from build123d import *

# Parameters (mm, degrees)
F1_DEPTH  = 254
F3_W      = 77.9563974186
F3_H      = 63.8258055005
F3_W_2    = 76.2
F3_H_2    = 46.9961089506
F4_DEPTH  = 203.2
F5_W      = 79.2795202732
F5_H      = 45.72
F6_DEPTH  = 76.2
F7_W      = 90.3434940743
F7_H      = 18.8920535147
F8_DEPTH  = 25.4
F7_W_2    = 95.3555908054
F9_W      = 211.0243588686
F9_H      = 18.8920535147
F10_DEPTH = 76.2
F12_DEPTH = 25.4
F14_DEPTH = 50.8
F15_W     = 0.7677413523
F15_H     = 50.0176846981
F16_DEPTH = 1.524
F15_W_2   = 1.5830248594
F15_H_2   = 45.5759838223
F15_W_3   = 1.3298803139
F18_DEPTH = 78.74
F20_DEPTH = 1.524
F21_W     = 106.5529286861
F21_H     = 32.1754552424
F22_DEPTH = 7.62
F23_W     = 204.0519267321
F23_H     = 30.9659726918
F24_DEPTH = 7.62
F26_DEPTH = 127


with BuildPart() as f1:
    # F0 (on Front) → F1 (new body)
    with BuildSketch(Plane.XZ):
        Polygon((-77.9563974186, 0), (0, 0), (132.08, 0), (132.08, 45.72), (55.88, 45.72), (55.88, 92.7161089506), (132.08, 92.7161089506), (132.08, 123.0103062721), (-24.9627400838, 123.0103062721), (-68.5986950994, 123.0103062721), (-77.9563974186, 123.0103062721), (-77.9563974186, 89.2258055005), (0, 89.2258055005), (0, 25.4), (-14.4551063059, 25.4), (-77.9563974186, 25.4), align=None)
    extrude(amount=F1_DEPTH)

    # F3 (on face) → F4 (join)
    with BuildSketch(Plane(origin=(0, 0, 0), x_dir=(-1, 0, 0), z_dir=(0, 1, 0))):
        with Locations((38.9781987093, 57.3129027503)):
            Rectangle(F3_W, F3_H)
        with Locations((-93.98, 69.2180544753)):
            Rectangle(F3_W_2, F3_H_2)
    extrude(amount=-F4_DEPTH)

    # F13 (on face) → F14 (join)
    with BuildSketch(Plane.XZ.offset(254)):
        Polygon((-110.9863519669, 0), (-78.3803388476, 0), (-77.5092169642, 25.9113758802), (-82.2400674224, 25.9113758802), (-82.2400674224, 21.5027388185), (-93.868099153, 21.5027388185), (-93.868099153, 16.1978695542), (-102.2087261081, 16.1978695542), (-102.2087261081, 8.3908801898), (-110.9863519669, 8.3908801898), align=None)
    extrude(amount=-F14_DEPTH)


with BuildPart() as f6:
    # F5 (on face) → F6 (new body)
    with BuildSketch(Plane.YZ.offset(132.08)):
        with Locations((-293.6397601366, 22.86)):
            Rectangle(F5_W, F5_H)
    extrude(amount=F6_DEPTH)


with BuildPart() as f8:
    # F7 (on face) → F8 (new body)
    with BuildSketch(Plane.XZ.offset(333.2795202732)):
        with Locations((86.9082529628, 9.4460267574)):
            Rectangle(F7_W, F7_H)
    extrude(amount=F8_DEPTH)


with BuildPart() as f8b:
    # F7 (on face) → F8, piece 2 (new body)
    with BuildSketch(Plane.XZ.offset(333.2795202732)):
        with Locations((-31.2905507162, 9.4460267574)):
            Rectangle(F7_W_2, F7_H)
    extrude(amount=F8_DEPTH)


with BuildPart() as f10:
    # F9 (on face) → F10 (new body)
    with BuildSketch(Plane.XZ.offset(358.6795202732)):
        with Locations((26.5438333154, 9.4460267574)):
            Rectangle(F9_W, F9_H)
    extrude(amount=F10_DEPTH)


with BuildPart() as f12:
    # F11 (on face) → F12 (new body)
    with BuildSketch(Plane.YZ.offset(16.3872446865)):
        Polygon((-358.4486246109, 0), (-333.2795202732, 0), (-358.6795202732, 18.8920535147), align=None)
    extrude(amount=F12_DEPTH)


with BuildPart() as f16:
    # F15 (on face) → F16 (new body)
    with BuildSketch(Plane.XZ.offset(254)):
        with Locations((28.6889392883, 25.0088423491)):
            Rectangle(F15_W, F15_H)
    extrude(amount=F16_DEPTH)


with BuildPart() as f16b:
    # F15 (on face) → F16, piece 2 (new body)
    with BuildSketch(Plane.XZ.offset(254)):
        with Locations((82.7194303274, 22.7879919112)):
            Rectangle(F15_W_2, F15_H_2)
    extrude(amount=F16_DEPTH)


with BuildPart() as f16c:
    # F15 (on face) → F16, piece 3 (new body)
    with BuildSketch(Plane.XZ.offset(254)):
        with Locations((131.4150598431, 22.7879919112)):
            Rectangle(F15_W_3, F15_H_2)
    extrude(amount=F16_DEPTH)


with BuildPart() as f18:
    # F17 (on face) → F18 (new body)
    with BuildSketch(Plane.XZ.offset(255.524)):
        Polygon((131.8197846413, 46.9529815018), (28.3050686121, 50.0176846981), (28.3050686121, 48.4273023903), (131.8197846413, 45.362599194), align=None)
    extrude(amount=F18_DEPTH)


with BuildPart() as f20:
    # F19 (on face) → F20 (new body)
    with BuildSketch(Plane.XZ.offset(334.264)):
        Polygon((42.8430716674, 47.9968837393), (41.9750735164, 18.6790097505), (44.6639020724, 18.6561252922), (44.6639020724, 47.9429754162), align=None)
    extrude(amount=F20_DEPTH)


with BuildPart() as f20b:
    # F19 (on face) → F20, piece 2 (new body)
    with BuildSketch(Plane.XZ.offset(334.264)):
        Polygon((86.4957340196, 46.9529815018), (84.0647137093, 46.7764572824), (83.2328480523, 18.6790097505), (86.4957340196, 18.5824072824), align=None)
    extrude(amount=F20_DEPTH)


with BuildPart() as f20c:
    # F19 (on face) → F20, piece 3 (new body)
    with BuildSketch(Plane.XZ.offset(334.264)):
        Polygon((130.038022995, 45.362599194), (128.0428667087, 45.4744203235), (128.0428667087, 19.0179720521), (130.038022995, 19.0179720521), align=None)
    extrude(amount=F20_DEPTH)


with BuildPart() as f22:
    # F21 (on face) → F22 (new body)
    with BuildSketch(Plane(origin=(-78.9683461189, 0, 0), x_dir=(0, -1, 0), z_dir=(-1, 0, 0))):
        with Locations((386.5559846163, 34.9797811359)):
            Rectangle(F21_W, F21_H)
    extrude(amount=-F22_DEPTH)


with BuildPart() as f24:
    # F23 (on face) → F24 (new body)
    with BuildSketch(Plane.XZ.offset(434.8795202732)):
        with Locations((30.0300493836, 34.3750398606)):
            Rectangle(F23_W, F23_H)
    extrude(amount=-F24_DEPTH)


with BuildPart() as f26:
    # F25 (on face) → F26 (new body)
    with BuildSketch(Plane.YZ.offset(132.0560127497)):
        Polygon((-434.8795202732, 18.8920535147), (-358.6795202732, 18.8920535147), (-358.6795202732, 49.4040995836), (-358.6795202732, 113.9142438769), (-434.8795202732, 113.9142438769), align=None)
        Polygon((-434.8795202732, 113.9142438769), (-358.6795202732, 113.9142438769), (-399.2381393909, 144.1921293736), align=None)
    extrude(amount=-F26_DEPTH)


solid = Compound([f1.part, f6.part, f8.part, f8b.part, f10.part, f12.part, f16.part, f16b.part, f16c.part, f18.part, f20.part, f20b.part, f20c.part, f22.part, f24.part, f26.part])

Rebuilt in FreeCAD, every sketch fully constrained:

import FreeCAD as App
import Part
import Sketcher
Q = App.Units.Quantity


def add_polygon(sketch, points):
    """Adds a closed chain of lines whose ends are joined by coincident constraints."""
    first, n = sketch.GeometryCount, len(points)
    for a, b in zip(points, points[1:] + points[:1]):
        sketch.addGeometry(Part.LineSegment(App.Vector(*a, 0), App.Vector(*b, 0)), False)
    for i in range(n):
        sketch.addConstraint(Sketcher.Constraint("Coincident", first + i, 2, first + (i + 1) % n, 1))

doc = App.newDocument("Part")
body = doc.addObject("PartDesign::Body", "Body")

sketch1 = body.newObject("Sketcher::SketchObject", "Sketch")
sketch1.AttachmentSupport = (doc.getObject("XZ_Plane"), [""])
sketch1.MapMode = "FlatFace"
add_polygon(sketch1, [(-77.956397, 0), (132.08, 0), (132.08, 45.72), (55.88, 45.72), (55.88, 92.716109), (132.08, 92.716109), (132.08, 123.010306), (-77.956397, 123.010306), (-77.956397, 89.225806), (0, 89.225806), (0, 25.4), (-77.956397, 25.4)])
sketch1.addConstraint([
    Sketcher.Constraint("Horizontal", 0),
    Sketcher.Constraint("Vertical", 1),
    Sketcher.Constraint("Horizontal", 2),
    Sketcher.Constraint("Vertical", 3),
    Sketcher.Constraint("Horizontal", 4),
    Sketcher.Constraint("Vertical", 5),
    Sketcher.Constraint("Horizontal", 6),
    Sketcher.Constraint("Vertical", 7),
    Sketcher.Constraint("Horizontal", 8),
    Sketcher.Constraint("Vertical", 9),
    Sketcher.Constraint("Horizontal", 10),
    Sketcher.Constraint("Vertical", 11),
    Sketcher.Constraint("PointOnObject", 0, 2, -1),
    Sketcher.Constraint("PointOnObject", 8, 2, -2),
    Sketcher.Constraint("Vertical", 1, 2, 4, 2),
    Sketcher.Constraint("Vertical", 7, 2, 10, 2),
    Sketcher.Constraint("DistanceX", 2, 2, 2, 1, Q("3 in")),
    Sketcher.Constraint("DistanceY", 11, 2, 11, 1, Q("1 in")),
    Sketcher.Constraint("DistanceY", 1, 1, 1, 2, Q("1.8 in")),
    Sketcher.Constraint("DistanceX", -1, 1, 0, 2, Q("5.2 in")),
    Sketcher.Constraint("DistanceY", 7, 2, 7, 1, Q("33.784501 mm")),
    Sketcher.Constraint("DistanceY", 3, 1, 3, 2, Q("46.996109 mm")),
    Sketcher.Constraint("DistanceX", 0, 1, 0, 2, Q("210.036397 mm")),
    Sketcher.Constraint("DistanceY", 5, 1, 5, 2, Q("30.294197 mm")),
])
pad1 = body.newObject("PartDesign::Pad", "Pad")
pad1.Profile = sketch1
pad1.Length = Q("10 in")

sketch2 = body.newObject("Sketcher::SketchObject", "Sketch001")
sketch2.AttachmentSupport = (doc.getObject("XZ_Plane"), [""])
sketch2.MapMode = "FlatFace"
add_polygon(sketch2, [(0, 89.225806), (0, 25.4), (-77.956397, 25.4), (-77.956397, 89.225806)])
add_polygon(sketch2, [(132.08, 92.716109), (132.08, 45.72), (55.88, 45.72), (55.88, 92.716109)])
sketch2.addConstraint([
    Sketcher.Constraint("Vertical", 0),
    Sketcher.Constraint("Horizontal", 1),
    Sketcher.Constraint("Vertical", 2),
    Sketcher.Constraint("Horizontal", 3),
    Sketcher.Constraint("Vertical", 4),
    Sketcher.Constraint("Horizontal", 5),
    Sketcher.Constraint("Vertical", 6),
    Sketcher.Constraint("Horizontal", 7),
    Sketcher.Constraint("PointOnObject", 0, 2, -2),
    Sketcher.Constraint("DistanceX", 5, 2, 5, 1, Q("3 in")),
    Sketcher.Constraint("DistanceY", -1, 1, 0, 2, Q("1 in")),
    Sketcher.Constraint("DistanceX", -1, 1, 4, 2, Q("5.2 in")),
    Sketcher.Constraint("DistanceY", -1, 1, 4, 2, Q("1.8 in")),
    Sketcher.Constraint("DistanceY", 4, 2, 4, 1, Q("46.996109 mm")),
    Sketcher.Constraint("DistanceX", 1, 2, 1, 1, Q("77.956397 mm")),
    Sketcher.Constraint("DistanceY", 0, 2, 0, 1, Q("63.825806 mm")),
])
pad2 = body.newObject("PartDesign::Pad", "Pad001")
pad2.Profile = sketch2
pad2.Length = Q("8 in")

sketch3 = body.newObject("Sketcher::SketchObject", "Sketch002")
sketch3.AttachmentSupport = (doc.getObject("XZ_Plane"), [""])
sketch3.MapMode = "FlatFace"
sketch3.AttachmentOffset = App.Placement(App.Vector(0, 0, 10 * 25.4), App.Rotation())
add_polygon(sketch3, [(-110.986352, 0), (-78.380339, 0), (-77.509217, 25.911376), (-82.240067, 25.911376), (-82.240067, 21.502739), (-93.868099, 21.502739), (-93.868099, 16.19787), (-102.208726, 16.19787), (-102.208726, 8.39088), (-110.986352, 8.39088)])
sketch3.addConstraint([
    Sketcher.Constraint("Horizontal", 0),
    Sketcher.Constraint("Horizontal", 2),
    Sketcher.Constraint("Vertical", 3),
    Sketcher.Constraint("Horizontal", 4),
    Sketcher.Constraint("Vertical", 5),
    Sketcher.Constraint("Horizontal", 6),
    Sketcher.Constraint("Vertical", 7),
    Sketcher.Constraint("Horizontal", 8),
    Sketcher.Constraint("Vertical", 9),
    Sketcher.Constraint("PointOnObject", 0, 2, -1),
    Sketcher.Constraint("DistanceX", 2, 2, 2, 1, Q("4.73085 mm")),
    Sketcher.Constraint("DistanceX", 4, 2, 4, 1, Q("11.628032 mm")),
    Sketcher.Constraint("DistanceY", 5, 2, 5, 1, Q("5.304869 mm")),
    Sketcher.Constraint("DistanceY", 7, 2, 7, 1, Q("7.806989 mm")),
    Sketcher.Constraint("DistanceY", 9, 2, 9, 1, Q("8.39088 mm")),
    Sketcher.Constraint("DistanceX", 4, 2, -1, 1, Q("93.868099 mm")),
    Sketcher.Constraint("DistanceX", 0, 1, 0, 2, Q("32.606013 mm")),
    Sketcher.Constraint("DistanceX", 6, 2, 6, 1, Q("8.340627 mm")),
    Sketcher.Constraint("DistanceX", 8, 2, 8, 1, Q("8.777626 mm")),
    Sketcher.Constraint("DistanceY", 3, 2, 3, 1, Q("4.408637 mm")),
])
pad3 = body.newObject("PartDesign::Pad", "Pad002")
pad3.Profile = sketch3
pad3.Length = Q("2 in")
pad3.Reversed = True
body2 = doc.addObject("PartDesign::Body", "Body001")

sketch4 = body2.newObject("Sketcher::SketchObject", "Sketch003")
sketch4.AttachmentSupport = (doc.getObject("YZ_Plane001"), [""])
sketch4.MapMode = "FlatFace"
sketch4.AttachmentOffset = App.Placement(App.Vector(0, 0, 5.2 * 25.4), App.Rotation())
add_polygon(sketch4, [(-333.27952, 45.72), (-333.27952, 0), (-254, 0), (-254, 45.72)])
sketch4.addConstraint([
    Sketcher.Constraint("Vertical", 0),
    Sketcher.Constraint("Horizontal", 1),
    Sketcher.Constraint("Vertical", 2),
    Sketcher.Constraint("Horizontal", 3),
    Sketcher.Constraint("PointOnObject", 0, 2, -1),
    Sketcher.Constraint("DistanceY", 0, 2, 0, 1, Q("1.8 in")),
    Sketcher.Constraint("DistanceX", 1, 2, -1, 1, Q("10 in")),
    Sketcher.Constraint("DistanceX", 1, 1, 1, 2, Q("79.27952 mm")),
])
pad4 = body2.newObject("PartDesign::Pad", "Pad003")
pad4.Profile = sketch4
pad4.Length = Q("3 in")
body3 = doc.addObject("PartDesign::Body", "Body002")

sketch5 = body3.newObject("Sketcher::SketchObject", "Sketch004")
sketch5.AttachmentSupport = (doc.getObject("XZ_Plane002"), [""])
sketch5.MapMode = "FlatFace"
sketch5.AttachmentOffset = App.Placement(App.Vector(0, 0, 333.27952), App.Rotation())
add_polygon(sketch5, [(41.736506, 18.892054), (41.736506, 0), (132.08, 0), (132.08, 18.892054)])
sketch5.addConstraint([
    Sketcher.Constraint("Vertical", 0),
    Sketcher.Constraint("Horizontal", 1),
    Sketcher.Constraint("Vertical", 2),
    Sketcher.Constraint("Horizontal", 3),
    Sketcher.Constraint("PointOnObject", 0, 2, -1),
    Sketcher.Constraint("DistanceX", -1, 1, 1, 2, Q("5.2 in")),
    Sketcher.Constraint("DistanceX", 1, 1, 1, 2, Q("90.343494 mm")),
    Sketcher.Constraint("DistanceY", 0, 2, 0, 1, Q("18.892054 mm")),
])
pad5 = body3.newObject("PartDesign::Pad", "Pad004")
pad5.Profile = sketch5
pad5.Length = Q("1 in")
body4 = doc.addObject("PartDesign::Body", "Body003")

sketch6 = body4.newObject("Sketcher::SketchObject", "Sketch005")
sketch6.AttachmentSupport = (doc.getObject("XZ_Plane003"), [""])
sketch6.MapMode = "FlatFace"
sketch6.AttachmentOffset = App.Placement(App.Vector(0, 0, 333.27952), App.Rotation())
add_polygon(sketch6, [(-78.968346, 18.892054), (-78.968346, 0), (16.387245, 0), (16.387245, 18.892054)])
sketch6.addConstraint([
    Sketcher.Constraint("Vertical", 0),
    Sketcher.Constraint("Horizontal", 1),
    Sketcher.Constraint("Vertical", 2),
    Sketcher.Constraint("Horizontal", 3),
    Sketcher.Constraint("PointOnObject", 0, 2, -1),
    Sketcher.Constraint("DistanceX", 1, 1, 1, 2, Q("95.355591 mm")),
    Sketcher.Constraint("DistanceY", 0, 2, 0, 1, Q("18.892054 mm")),
    Sketcher.Constraint("DistanceX", 0, 2, -1, 1, Q("78.968346 mm")),
])
pad6 = body4.newObject("PartDesign::Pad", "Pad005")
pad6.Profile = sketch6
pad6.Length = Q("1 in")
body5 = doc.addObject("PartDesign::Body", "Body004")

sketch7 = body5.newObject("Sketcher::SketchObject", "Sketch006")
sketch7.AttachmentSupport = (doc.getObject("XZ_Plane004"), [""])
sketch7.MapMode = "FlatFace"
sketch7.AttachmentOffset = App.Placement(App.Vector(0, 0, 358.67952), App.Rotation())
add_polygon(sketch7, [(-78.968346, 18.892054), (-78.968346, 0), (132.056013, 0), (132.056013, 18.892054)])
sketch7.addConstraint([
    Sketcher.Constraint("Vertical", 0),
    Sketcher.Constraint("Horizontal", 1),
    Sketcher.Constraint("Vertical", 2),
    Sketcher.Constraint("Horizontal", 3),
    Sketcher.Constraint("PointOnObject", 0, 2, -1),
    Sketcher.Constraint("DistanceX", 1, 1, 1, 2, Q("211.024359 mm")),
    Sketcher.Constraint("DistanceY", 0, 2, 0, 1, Q("18.892054 mm")),
    Sketcher.Constraint("DistanceX", 0, 2, -1, 1, Q("78.968346 mm")),
])
pad7 = body5.newObject("PartDesign::Pad", "Pad006")
pad7.Profile = sketch7
pad7.Length = Q("3 in")
body6 = doc.addObject("PartDesign::Body", "Body005")

sketch8 = body6.newObject("Sketcher::SketchObject", "Sketch007")
sketch8.AttachmentSupport = (doc.getObject("YZ_Plane005"), [""])
sketch8.MapMode = "FlatFace"
sketch8.AttachmentOffset = App.Placement(App.Vector(0, 0, 16.387245), App.Rotation())
add_polygon(sketch8, [(-358.448625, 0), (-333.27952, 0), (-358.67952, 18.892054)])
sketch8.addConstraint([
    Sketcher.Constraint("Horizontal", 0),
    Sketcher.Constraint("PointOnObject", 0, 2, -1),
    Sketcher.Constraint("DistanceX", 1, 2, 0, 2, Q("1 in")),
    Sketcher.Constraint("DistanceX", 0, 1, 0, 2, Q("25.169104 mm")),
    Sketcher.Constraint("DistanceX", 0, 2, -1, 1, Q("333.27952 mm")),
    Sketcher.Constraint("Distance", 1, Q("31.655484 mm")),
])
pad8 = body6.newObject("PartDesign::Pad", "Pad007")
pad8.Profile = sketch8
pad8.Length = Q("1 in")
body7 = doc.addObject("PartDesign::Body", "Body006")

sketch9 = body7.newObject("Sketcher::SketchObject", "Sketch008")
sketch9.AttachmentSupport = (doc.getObject("XZ_Plane006"), [""])
sketch9.MapMode = "FlatFace"
sketch9.AttachmentOffset = App.Placement(App.Vector(0, 0, 10 * 25.4), App.Rotation())
add_polygon(sketch9, [(28.305069, 50.017685), (28.305069, 0), (29.07281, 0), (29.07281, 50.017685)])
sketch9.addConstraint([
    Sketcher.Constraint("Vertical", 0),
    Sketcher.Constraint("Horizontal", 1),
    Sketcher.Constraint("Vertical", 2),
    Sketcher.Constraint("Horizontal", 3),
    Sketcher.Constraint("PointOnObject", 0, 2, -1),
    Sketcher.Constraint("DistanceY", 0, 2, 0, 1, Q("1.9692002 in")),
    Sketcher.Constraint("DistanceX", 1, 1, 1, 2, Q("0.767741 mm")),
    Sketcher.Constraint("DistanceX", -1, 1, 0, 2, Q("28.305069 mm")),
])
pad9 = body7.newObject("PartDesign::Pad", "Pad008")
pad9.Profile = sketch9
pad9.Length = Q("0.06 in")
body8 = doc.addObject("PartDesign::Body", "Body007")

sketch10 = body8.newObject("Sketcher::SketchObject", "Sketch009")
sketch10.AttachmentSupport = (doc.getObject("XZ_Plane007"), [""])
sketch10.MapMode = "FlatFace"
sketch10.AttachmentOffset = App.Placement(App.Vector(0, 0, 10 * 25.4), App.Rotation())
add_polygon(sketch10, [(81.927918, 45.575984), (81.927918, 0), (83.510943, 0), (83.510943, 45.575984)])
sketch10.addConstraint([
    Sketcher.Constraint("Vertical", 0),
    Sketcher.Constraint("Horizontal", 1),
    Sketcher.Constraint("Vertical", 2),
    Sketcher.Constraint("Horizontal", 3),
    Sketcher.Constraint("PointOnObject", 0, 2, -1),
    Sketcher.Constraint("DistanceX", 1, 1, 1, 2, Q("1.583025 mm")),
    Sketcher.Constraint("DistanceY", 0, 2, 0, 1, Q("45.575984 mm")),
    Sketcher.Constraint("DistanceX", -1, 1, 0, 2, Q("81.927918 mm")),
])
pad10 = body8.newObject("PartDesign::Pad", "Pad009")
pad10.Profile = sketch10
pad10.Length = Q("0.06 in")
body9 = doc.addObject("PartDesign::Body", "Body008")

sketch11 = body9.newObject("Sketcher::SketchObject", "Sketch010")
sketch11.AttachmentSupport = (doc.getObject("XZ_Plane008"), [""])
sketch11.MapMode = "FlatFace"
sketch11.AttachmentOffset = App.Placement(App.Vector(0, 0, 10 * 25.4), App.Rotation())
add_polygon(sketch11, [(130.75012, 45.575984), (130.75012, 0), (132.08, 0), (132.08, 45.575984)])
sketch11.addConstraint([
    Sketcher.Constraint("Vertical", 0),
    Sketcher.Constraint("Horizontal", 1),
    Sketcher.Constraint("Vertical", 2),
    Sketcher.Constraint("Horizontal", 3),
    Sketcher.Constraint("PointOnObject", 0, 2, -1),
    Sketcher.Constraint("DistanceX", -1, 1, 1, 2, Q("5.2 in")),
    Sketcher.Constraint("DistanceX", 1, 1, 1, 2, Q("1.32988 mm")),
    Sketcher.Constraint("DistanceY", 0, 2, 0, 1, Q("45.575984 mm")),
])
pad11 = body9.newObject("PartDesign::Pad", "Pad010")
pad11.Profile = sketch11
pad11.Length = Q("0.06 in")
body10 = doc.addObject("PartDesign::Body", "Body009")

sketch12 = body10.newObject("Sketcher::SketchObject", "Sketch011")
sketch12.AttachmentSupport = (doc.getObject("XZ_Plane009"), [""])
sketch12.MapMode = "FlatFace"
sketch12.AttachmentOffset = App.Placement(App.Vector(0, 0, 10.06 * 25.4), App.Rotation())
add_polygon(sketch12, [(131.819785, 46.952982), (28.305069, 50.017685), (28.305069, 48.427302), (131.819785, 45.362599)])
sketch12.addConstraint([
    Sketcher.Constraint("Vertical", 1),
    Sketcher.Constraint("Vertical", 3),
    Sketcher.Constraint("Parallel", 0, 2),
    Sketcher.Constraint("DistanceY", -1, 1, 0, 2, Q("1.9692002 in")),
    Sketcher.Constraint("DistanceY", -1, 1, 2, 2, Q("45.362599 mm")),
    Sketcher.Constraint("DistanceY", 1, 2, 1, 1, Q("1.590382 mm")),
    Sketcher.Constraint("DistanceX", -1, 1, 0, 2, Q("28.305069 mm")),
    Sketcher.Constraint("Distance", 0, Q("103.560074 mm")),
])
pad12 = body10.newObject("PartDesign::Pad", "Pad011")
pad12.Profile = sketch12
pad12.Length = Q("3.1 in")
body11 = doc.addObject("PartDesign::Body", "Body010")

sketch13 = body11.newObject("Sketcher::SketchObject", "Sketch012")
sketch13.AttachmentSupport = (doc.getObject("XZ_Plane010"), [""])
sketch13.MapMode = "FlatFace"
sketch13.AttachmentOffset = App.Placement(App.Vector(0, 0, 13.16 * 25.4), App.Rotation())
add_polygon(sketch13, [(42.843072, 47.996884), (41.975074, 18.67901), (44.663902, 18.656125), (44.663902, 47.942975)])
sketch13.addConstraint([
    Sketcher.Constraint("Vertical", 2),
    Sketcher.Constraint("Perpendicular", 0, 3),
    Sketcher.Constraint("DistanceY", 2, 1, 2, 2, Q("29.28685 mm")),
    Sketcher.Constraint("DistanceX", 0, 2, 3, 2, Q("0.867998 mm")),
    Sketcher.Constraint("Distance", 0, Q("29.33072 mm")),
    Sketcher.Constraint("Distance", 3, Q("1.821628 mm")),
    Sketcher.Constraint("DistanceY", -1, 1, 0, 2, Q("18.67901 mm")),
    Sketcher.Constraint("DistanceX", -1, 1, 3, 2, Q("42.843072 mm")),
])
pad13 = body11.newObject("PartDesign::Pad", "Pad012")
pad13.Profile = sketch13
pad13.Length = Q("0.06 in")
body12 = doc.addObject("PartDesign::Body", "Body011")

sketch14 = body12.newObject("Sketcher::SketchObject", "Sketch013")
sketch14.AttachmentSupport = (doc.getObject("XZ_Plane011"), [""])
sketch14.MapMode = "FlatFace"
sketch14.AttachmentOffset = App.Placement(App.Vector(0, 0, 13.16 * 25.4), App.Rotation())
add_polygon(sketch14, [(86.495734, 46.952982), (84.064714, 46.776457), (83.232848, 18.67901), (86.495734, 18.582407)])
sketch14.addConstraint([
    Sketcher.Constraint("Vertical", 3),
    Sketcher.Constraint("Perpendicular", 1, 2),
    Sketcher.Constraint("Distance", 0, Q("2.437421 mm")),
    Sketcher.Constraint("Distance", 1, Q("28.109759 mm")),
    Sketcher.Constraint("DistanceY", 3, 1, 3, 2, Q("28.370574 mm")),
    Sketcher.Constraint("DistanceX", -1, 1, 1, 2, Q("83.232848 mm")),
    Sketcher.Constraint("DistanceY", -1, 1, 1, 2, Q("18.67901 mm")),
    Sketcher.Constraint("DistanceY", -1, 1, 3, 2, Q("46.952982 mm")),
])
pad14 = body12.newObject("PartDesign::Pad", "Pad013")
pad14.Profile = sketch14
pad14.Length = Q("0.06 in")
body13 = doc.addObject("PartDesign::Body", "Body012")

sketch15 = body13.newObject("Sketcher::SketchObject", "Sketch014")
sketch15.AttachmentSupport = (doc.getObject("XZ_Plane012"), [""])
sketch15.MapMode = "FlatFace"
sketch15.AttachmentOffset = App.Placement(App.Vector(0, 0, 13.16 * 25.4), App.Rotation())
add_polygon(sketch15, [(130.038023, 45.362599), (128.042867, 45.47442), (128.042867, 19.017972), (130.038023, 19.017972)])
sketch15.addConstraint([
    Sketcher.Constraint("Vertical", 1),
    Sketcher.Constraint("Horizontal", 2),
    Sketcher.Constraint("Vertical", 3),
    Sketcher.Constraint("DistanceY", 1, 2, 1, 1, Q("26.456448 mm")),
    Sketcher.Constraint("DistanceY", -1, 1, 3, 2, Q("45.362599 mm")),
    Sketcher.Constraint("DistanceX", 2, 1, 2, 2, Q("1.995156 mm")),
    Sketcher.Constraint("DistanceY", 3, 1, 3, 2, Q("26.344627 mm")),
    Sketcher.Constraint("DistanceX", -1, 1, 0, 2, Q("128.042867 mm")),
])
pad15 = body13.newObject("PartDesign::Pad", "Pad014")
pad15.Profile = sketch15
pad15.Length = Q("0.06 in")
body14 = doc.addObject("PartDesign::Body", "Body013")

sketch16 = body14.newObject("Sketcher::SketchObject", "Sketch015")
sketch16.AttachmentSupport = (doc.getObject("YZ_Plane013"), [""])
sketch16.MapMode = "FlatFace"
sketch16.AttachmentOffset = App.Placement(App.Vector(0, 0, -78.968346), App.Rotation())
add_polygon(sketch16, [(-333.27952, 51.067509), (-333.27952, 18.892054), (-439.832449, 18.892054), (-439.832449, 51.067509)])
sketch16.addConstraint([
    Sketcher.Constraint("Vertical", 0),
    Sketcher.Constraint("Horizontal", 1),
    Sketcher.Constraint("Vertical", 2),
    Sketcher.Constraint("Horizontal", 3),
    Sketcher.Constraint("DistanceX", 1, 2, 1, 1, Q("106.552929 mm")),
    Sketcher.Constraint("DistanceY", 0, 2, 0, 1, Q("32.175455 mm")),
    Sketcher.Constraint("DistanceX", 0, 2, -1, 1, Q("333.27952 mm")),
    Sketcher.Constraint("DistanceY", -1, 1, 2, 2, Q("51.067509 mm")),
])
pad16 = body14.newObject("PartDesign::Pad", "Pad015")
pad16.Profile = sketch16
pad16.Length = Q("0.3 in")
body15 = doc.addObject("PartDesign::Body", "Body014")

sketch17 = body15.newObject("Sketcher::SketchObject", "Sketch016")
sketch17.AttachmentSupport = (doc.getObject("XZ_Plane014"), [""])
sketch17.MapMode = "FlatFace"
sketch17.AttachmentOffset = App.Placement(App.Vector(0, 0, 434.87952), App.Rotation())
add_polygon(sketch17, [(-71.995914, 49.858026), (-71.995914, 18.892054), (132.056013, 18.892054), (132.056013, 49.858026)])
sketch17.addConstraint([
    Sketcher.Constraint("Vertical", 0),
    Sketcher.Constraint("Horizontal", 1),
    Sketcher.Constraint("Vertical", 2),
    Sketcher.Constraint("Horizontal", 3),
    Sketcher.Constraint("DistanceX", 1, 1, 1, 2, Q("204.051927 mm")),
    Sketcher.Constraint("DistanceY", 0, 2, 0, 1, Q("30.965973 mm")),
    Sketcher.Constraint("DistanceX", 0, 2, -1, 1, Q("71.995914 mm")),
    Sketcher.Constraint("DistanceY", -1, 1, 0, 2, Q("18.892054 mm")),
])
pad17 = body15.newObject("PartDesign::Pad", "Pad016")
pad17.Profile = sketch17
pad17.Length = Q("0.3 in")
pad17.Reversed = True
body16 = doc.addObject("PartDesign::Body", "Body015")

sketch18 = body16.newObject("Sketcher::SketchObject", "Sketch017")
sketch18.AttachmentSupport = (doc.getObject("YZ_Plane015"), [""])
sketch18.MapMode = "FlatFace"
sketch18.AttachmentOffset = App.Placement(App.Vector(0, 0, 132.056013), App.Rotation())
add_polygon(sketch18, [(-434.87952, 18.892054), (-358.67952, 18.892054), (-358.67952, 113.914244), (-399.238139, 144.192129), (-434.87952, 113.914244)])
sketch18.addConstraint([
    Sketcher.Constraint("Horizontal", 0),
    Sketcher.Constraint("Vertical", 1),
    Sketcher.Constraint("Vertical", 4),
    Sketcher.Constraint("Horizontal", 1, 2, 3, 2),
    Sketcher.Constraint("DistanceX", 0, 1, 0, 2, Q("3 in")),
    Sketcher.Constraint("DistanceY", 1, 1, 1, 2, Q("95.02219 mm")),
    Sketcher.Constraint("DistanceX", 0, 2, -1, 1, Q("358.67952 mm")),
    Sketcher.Constraint("DistanceX", 2, 2, -1, 1, Q("399.238139 mm")),
    Sketcher.Constraint("DistanceY", -1, 1, 2, 2, Q("144.192129 mm")),
    Sketcher.Constraint("Distance", 2, Q("50.613752 mm")),
])
pad18 = body16.newObject("PartDesign::Pad", "Pad017")
pad18.Profile = sketch18
pad18.Length = Q("5 in")
pad18.Reversed = True

doc.recompute()
